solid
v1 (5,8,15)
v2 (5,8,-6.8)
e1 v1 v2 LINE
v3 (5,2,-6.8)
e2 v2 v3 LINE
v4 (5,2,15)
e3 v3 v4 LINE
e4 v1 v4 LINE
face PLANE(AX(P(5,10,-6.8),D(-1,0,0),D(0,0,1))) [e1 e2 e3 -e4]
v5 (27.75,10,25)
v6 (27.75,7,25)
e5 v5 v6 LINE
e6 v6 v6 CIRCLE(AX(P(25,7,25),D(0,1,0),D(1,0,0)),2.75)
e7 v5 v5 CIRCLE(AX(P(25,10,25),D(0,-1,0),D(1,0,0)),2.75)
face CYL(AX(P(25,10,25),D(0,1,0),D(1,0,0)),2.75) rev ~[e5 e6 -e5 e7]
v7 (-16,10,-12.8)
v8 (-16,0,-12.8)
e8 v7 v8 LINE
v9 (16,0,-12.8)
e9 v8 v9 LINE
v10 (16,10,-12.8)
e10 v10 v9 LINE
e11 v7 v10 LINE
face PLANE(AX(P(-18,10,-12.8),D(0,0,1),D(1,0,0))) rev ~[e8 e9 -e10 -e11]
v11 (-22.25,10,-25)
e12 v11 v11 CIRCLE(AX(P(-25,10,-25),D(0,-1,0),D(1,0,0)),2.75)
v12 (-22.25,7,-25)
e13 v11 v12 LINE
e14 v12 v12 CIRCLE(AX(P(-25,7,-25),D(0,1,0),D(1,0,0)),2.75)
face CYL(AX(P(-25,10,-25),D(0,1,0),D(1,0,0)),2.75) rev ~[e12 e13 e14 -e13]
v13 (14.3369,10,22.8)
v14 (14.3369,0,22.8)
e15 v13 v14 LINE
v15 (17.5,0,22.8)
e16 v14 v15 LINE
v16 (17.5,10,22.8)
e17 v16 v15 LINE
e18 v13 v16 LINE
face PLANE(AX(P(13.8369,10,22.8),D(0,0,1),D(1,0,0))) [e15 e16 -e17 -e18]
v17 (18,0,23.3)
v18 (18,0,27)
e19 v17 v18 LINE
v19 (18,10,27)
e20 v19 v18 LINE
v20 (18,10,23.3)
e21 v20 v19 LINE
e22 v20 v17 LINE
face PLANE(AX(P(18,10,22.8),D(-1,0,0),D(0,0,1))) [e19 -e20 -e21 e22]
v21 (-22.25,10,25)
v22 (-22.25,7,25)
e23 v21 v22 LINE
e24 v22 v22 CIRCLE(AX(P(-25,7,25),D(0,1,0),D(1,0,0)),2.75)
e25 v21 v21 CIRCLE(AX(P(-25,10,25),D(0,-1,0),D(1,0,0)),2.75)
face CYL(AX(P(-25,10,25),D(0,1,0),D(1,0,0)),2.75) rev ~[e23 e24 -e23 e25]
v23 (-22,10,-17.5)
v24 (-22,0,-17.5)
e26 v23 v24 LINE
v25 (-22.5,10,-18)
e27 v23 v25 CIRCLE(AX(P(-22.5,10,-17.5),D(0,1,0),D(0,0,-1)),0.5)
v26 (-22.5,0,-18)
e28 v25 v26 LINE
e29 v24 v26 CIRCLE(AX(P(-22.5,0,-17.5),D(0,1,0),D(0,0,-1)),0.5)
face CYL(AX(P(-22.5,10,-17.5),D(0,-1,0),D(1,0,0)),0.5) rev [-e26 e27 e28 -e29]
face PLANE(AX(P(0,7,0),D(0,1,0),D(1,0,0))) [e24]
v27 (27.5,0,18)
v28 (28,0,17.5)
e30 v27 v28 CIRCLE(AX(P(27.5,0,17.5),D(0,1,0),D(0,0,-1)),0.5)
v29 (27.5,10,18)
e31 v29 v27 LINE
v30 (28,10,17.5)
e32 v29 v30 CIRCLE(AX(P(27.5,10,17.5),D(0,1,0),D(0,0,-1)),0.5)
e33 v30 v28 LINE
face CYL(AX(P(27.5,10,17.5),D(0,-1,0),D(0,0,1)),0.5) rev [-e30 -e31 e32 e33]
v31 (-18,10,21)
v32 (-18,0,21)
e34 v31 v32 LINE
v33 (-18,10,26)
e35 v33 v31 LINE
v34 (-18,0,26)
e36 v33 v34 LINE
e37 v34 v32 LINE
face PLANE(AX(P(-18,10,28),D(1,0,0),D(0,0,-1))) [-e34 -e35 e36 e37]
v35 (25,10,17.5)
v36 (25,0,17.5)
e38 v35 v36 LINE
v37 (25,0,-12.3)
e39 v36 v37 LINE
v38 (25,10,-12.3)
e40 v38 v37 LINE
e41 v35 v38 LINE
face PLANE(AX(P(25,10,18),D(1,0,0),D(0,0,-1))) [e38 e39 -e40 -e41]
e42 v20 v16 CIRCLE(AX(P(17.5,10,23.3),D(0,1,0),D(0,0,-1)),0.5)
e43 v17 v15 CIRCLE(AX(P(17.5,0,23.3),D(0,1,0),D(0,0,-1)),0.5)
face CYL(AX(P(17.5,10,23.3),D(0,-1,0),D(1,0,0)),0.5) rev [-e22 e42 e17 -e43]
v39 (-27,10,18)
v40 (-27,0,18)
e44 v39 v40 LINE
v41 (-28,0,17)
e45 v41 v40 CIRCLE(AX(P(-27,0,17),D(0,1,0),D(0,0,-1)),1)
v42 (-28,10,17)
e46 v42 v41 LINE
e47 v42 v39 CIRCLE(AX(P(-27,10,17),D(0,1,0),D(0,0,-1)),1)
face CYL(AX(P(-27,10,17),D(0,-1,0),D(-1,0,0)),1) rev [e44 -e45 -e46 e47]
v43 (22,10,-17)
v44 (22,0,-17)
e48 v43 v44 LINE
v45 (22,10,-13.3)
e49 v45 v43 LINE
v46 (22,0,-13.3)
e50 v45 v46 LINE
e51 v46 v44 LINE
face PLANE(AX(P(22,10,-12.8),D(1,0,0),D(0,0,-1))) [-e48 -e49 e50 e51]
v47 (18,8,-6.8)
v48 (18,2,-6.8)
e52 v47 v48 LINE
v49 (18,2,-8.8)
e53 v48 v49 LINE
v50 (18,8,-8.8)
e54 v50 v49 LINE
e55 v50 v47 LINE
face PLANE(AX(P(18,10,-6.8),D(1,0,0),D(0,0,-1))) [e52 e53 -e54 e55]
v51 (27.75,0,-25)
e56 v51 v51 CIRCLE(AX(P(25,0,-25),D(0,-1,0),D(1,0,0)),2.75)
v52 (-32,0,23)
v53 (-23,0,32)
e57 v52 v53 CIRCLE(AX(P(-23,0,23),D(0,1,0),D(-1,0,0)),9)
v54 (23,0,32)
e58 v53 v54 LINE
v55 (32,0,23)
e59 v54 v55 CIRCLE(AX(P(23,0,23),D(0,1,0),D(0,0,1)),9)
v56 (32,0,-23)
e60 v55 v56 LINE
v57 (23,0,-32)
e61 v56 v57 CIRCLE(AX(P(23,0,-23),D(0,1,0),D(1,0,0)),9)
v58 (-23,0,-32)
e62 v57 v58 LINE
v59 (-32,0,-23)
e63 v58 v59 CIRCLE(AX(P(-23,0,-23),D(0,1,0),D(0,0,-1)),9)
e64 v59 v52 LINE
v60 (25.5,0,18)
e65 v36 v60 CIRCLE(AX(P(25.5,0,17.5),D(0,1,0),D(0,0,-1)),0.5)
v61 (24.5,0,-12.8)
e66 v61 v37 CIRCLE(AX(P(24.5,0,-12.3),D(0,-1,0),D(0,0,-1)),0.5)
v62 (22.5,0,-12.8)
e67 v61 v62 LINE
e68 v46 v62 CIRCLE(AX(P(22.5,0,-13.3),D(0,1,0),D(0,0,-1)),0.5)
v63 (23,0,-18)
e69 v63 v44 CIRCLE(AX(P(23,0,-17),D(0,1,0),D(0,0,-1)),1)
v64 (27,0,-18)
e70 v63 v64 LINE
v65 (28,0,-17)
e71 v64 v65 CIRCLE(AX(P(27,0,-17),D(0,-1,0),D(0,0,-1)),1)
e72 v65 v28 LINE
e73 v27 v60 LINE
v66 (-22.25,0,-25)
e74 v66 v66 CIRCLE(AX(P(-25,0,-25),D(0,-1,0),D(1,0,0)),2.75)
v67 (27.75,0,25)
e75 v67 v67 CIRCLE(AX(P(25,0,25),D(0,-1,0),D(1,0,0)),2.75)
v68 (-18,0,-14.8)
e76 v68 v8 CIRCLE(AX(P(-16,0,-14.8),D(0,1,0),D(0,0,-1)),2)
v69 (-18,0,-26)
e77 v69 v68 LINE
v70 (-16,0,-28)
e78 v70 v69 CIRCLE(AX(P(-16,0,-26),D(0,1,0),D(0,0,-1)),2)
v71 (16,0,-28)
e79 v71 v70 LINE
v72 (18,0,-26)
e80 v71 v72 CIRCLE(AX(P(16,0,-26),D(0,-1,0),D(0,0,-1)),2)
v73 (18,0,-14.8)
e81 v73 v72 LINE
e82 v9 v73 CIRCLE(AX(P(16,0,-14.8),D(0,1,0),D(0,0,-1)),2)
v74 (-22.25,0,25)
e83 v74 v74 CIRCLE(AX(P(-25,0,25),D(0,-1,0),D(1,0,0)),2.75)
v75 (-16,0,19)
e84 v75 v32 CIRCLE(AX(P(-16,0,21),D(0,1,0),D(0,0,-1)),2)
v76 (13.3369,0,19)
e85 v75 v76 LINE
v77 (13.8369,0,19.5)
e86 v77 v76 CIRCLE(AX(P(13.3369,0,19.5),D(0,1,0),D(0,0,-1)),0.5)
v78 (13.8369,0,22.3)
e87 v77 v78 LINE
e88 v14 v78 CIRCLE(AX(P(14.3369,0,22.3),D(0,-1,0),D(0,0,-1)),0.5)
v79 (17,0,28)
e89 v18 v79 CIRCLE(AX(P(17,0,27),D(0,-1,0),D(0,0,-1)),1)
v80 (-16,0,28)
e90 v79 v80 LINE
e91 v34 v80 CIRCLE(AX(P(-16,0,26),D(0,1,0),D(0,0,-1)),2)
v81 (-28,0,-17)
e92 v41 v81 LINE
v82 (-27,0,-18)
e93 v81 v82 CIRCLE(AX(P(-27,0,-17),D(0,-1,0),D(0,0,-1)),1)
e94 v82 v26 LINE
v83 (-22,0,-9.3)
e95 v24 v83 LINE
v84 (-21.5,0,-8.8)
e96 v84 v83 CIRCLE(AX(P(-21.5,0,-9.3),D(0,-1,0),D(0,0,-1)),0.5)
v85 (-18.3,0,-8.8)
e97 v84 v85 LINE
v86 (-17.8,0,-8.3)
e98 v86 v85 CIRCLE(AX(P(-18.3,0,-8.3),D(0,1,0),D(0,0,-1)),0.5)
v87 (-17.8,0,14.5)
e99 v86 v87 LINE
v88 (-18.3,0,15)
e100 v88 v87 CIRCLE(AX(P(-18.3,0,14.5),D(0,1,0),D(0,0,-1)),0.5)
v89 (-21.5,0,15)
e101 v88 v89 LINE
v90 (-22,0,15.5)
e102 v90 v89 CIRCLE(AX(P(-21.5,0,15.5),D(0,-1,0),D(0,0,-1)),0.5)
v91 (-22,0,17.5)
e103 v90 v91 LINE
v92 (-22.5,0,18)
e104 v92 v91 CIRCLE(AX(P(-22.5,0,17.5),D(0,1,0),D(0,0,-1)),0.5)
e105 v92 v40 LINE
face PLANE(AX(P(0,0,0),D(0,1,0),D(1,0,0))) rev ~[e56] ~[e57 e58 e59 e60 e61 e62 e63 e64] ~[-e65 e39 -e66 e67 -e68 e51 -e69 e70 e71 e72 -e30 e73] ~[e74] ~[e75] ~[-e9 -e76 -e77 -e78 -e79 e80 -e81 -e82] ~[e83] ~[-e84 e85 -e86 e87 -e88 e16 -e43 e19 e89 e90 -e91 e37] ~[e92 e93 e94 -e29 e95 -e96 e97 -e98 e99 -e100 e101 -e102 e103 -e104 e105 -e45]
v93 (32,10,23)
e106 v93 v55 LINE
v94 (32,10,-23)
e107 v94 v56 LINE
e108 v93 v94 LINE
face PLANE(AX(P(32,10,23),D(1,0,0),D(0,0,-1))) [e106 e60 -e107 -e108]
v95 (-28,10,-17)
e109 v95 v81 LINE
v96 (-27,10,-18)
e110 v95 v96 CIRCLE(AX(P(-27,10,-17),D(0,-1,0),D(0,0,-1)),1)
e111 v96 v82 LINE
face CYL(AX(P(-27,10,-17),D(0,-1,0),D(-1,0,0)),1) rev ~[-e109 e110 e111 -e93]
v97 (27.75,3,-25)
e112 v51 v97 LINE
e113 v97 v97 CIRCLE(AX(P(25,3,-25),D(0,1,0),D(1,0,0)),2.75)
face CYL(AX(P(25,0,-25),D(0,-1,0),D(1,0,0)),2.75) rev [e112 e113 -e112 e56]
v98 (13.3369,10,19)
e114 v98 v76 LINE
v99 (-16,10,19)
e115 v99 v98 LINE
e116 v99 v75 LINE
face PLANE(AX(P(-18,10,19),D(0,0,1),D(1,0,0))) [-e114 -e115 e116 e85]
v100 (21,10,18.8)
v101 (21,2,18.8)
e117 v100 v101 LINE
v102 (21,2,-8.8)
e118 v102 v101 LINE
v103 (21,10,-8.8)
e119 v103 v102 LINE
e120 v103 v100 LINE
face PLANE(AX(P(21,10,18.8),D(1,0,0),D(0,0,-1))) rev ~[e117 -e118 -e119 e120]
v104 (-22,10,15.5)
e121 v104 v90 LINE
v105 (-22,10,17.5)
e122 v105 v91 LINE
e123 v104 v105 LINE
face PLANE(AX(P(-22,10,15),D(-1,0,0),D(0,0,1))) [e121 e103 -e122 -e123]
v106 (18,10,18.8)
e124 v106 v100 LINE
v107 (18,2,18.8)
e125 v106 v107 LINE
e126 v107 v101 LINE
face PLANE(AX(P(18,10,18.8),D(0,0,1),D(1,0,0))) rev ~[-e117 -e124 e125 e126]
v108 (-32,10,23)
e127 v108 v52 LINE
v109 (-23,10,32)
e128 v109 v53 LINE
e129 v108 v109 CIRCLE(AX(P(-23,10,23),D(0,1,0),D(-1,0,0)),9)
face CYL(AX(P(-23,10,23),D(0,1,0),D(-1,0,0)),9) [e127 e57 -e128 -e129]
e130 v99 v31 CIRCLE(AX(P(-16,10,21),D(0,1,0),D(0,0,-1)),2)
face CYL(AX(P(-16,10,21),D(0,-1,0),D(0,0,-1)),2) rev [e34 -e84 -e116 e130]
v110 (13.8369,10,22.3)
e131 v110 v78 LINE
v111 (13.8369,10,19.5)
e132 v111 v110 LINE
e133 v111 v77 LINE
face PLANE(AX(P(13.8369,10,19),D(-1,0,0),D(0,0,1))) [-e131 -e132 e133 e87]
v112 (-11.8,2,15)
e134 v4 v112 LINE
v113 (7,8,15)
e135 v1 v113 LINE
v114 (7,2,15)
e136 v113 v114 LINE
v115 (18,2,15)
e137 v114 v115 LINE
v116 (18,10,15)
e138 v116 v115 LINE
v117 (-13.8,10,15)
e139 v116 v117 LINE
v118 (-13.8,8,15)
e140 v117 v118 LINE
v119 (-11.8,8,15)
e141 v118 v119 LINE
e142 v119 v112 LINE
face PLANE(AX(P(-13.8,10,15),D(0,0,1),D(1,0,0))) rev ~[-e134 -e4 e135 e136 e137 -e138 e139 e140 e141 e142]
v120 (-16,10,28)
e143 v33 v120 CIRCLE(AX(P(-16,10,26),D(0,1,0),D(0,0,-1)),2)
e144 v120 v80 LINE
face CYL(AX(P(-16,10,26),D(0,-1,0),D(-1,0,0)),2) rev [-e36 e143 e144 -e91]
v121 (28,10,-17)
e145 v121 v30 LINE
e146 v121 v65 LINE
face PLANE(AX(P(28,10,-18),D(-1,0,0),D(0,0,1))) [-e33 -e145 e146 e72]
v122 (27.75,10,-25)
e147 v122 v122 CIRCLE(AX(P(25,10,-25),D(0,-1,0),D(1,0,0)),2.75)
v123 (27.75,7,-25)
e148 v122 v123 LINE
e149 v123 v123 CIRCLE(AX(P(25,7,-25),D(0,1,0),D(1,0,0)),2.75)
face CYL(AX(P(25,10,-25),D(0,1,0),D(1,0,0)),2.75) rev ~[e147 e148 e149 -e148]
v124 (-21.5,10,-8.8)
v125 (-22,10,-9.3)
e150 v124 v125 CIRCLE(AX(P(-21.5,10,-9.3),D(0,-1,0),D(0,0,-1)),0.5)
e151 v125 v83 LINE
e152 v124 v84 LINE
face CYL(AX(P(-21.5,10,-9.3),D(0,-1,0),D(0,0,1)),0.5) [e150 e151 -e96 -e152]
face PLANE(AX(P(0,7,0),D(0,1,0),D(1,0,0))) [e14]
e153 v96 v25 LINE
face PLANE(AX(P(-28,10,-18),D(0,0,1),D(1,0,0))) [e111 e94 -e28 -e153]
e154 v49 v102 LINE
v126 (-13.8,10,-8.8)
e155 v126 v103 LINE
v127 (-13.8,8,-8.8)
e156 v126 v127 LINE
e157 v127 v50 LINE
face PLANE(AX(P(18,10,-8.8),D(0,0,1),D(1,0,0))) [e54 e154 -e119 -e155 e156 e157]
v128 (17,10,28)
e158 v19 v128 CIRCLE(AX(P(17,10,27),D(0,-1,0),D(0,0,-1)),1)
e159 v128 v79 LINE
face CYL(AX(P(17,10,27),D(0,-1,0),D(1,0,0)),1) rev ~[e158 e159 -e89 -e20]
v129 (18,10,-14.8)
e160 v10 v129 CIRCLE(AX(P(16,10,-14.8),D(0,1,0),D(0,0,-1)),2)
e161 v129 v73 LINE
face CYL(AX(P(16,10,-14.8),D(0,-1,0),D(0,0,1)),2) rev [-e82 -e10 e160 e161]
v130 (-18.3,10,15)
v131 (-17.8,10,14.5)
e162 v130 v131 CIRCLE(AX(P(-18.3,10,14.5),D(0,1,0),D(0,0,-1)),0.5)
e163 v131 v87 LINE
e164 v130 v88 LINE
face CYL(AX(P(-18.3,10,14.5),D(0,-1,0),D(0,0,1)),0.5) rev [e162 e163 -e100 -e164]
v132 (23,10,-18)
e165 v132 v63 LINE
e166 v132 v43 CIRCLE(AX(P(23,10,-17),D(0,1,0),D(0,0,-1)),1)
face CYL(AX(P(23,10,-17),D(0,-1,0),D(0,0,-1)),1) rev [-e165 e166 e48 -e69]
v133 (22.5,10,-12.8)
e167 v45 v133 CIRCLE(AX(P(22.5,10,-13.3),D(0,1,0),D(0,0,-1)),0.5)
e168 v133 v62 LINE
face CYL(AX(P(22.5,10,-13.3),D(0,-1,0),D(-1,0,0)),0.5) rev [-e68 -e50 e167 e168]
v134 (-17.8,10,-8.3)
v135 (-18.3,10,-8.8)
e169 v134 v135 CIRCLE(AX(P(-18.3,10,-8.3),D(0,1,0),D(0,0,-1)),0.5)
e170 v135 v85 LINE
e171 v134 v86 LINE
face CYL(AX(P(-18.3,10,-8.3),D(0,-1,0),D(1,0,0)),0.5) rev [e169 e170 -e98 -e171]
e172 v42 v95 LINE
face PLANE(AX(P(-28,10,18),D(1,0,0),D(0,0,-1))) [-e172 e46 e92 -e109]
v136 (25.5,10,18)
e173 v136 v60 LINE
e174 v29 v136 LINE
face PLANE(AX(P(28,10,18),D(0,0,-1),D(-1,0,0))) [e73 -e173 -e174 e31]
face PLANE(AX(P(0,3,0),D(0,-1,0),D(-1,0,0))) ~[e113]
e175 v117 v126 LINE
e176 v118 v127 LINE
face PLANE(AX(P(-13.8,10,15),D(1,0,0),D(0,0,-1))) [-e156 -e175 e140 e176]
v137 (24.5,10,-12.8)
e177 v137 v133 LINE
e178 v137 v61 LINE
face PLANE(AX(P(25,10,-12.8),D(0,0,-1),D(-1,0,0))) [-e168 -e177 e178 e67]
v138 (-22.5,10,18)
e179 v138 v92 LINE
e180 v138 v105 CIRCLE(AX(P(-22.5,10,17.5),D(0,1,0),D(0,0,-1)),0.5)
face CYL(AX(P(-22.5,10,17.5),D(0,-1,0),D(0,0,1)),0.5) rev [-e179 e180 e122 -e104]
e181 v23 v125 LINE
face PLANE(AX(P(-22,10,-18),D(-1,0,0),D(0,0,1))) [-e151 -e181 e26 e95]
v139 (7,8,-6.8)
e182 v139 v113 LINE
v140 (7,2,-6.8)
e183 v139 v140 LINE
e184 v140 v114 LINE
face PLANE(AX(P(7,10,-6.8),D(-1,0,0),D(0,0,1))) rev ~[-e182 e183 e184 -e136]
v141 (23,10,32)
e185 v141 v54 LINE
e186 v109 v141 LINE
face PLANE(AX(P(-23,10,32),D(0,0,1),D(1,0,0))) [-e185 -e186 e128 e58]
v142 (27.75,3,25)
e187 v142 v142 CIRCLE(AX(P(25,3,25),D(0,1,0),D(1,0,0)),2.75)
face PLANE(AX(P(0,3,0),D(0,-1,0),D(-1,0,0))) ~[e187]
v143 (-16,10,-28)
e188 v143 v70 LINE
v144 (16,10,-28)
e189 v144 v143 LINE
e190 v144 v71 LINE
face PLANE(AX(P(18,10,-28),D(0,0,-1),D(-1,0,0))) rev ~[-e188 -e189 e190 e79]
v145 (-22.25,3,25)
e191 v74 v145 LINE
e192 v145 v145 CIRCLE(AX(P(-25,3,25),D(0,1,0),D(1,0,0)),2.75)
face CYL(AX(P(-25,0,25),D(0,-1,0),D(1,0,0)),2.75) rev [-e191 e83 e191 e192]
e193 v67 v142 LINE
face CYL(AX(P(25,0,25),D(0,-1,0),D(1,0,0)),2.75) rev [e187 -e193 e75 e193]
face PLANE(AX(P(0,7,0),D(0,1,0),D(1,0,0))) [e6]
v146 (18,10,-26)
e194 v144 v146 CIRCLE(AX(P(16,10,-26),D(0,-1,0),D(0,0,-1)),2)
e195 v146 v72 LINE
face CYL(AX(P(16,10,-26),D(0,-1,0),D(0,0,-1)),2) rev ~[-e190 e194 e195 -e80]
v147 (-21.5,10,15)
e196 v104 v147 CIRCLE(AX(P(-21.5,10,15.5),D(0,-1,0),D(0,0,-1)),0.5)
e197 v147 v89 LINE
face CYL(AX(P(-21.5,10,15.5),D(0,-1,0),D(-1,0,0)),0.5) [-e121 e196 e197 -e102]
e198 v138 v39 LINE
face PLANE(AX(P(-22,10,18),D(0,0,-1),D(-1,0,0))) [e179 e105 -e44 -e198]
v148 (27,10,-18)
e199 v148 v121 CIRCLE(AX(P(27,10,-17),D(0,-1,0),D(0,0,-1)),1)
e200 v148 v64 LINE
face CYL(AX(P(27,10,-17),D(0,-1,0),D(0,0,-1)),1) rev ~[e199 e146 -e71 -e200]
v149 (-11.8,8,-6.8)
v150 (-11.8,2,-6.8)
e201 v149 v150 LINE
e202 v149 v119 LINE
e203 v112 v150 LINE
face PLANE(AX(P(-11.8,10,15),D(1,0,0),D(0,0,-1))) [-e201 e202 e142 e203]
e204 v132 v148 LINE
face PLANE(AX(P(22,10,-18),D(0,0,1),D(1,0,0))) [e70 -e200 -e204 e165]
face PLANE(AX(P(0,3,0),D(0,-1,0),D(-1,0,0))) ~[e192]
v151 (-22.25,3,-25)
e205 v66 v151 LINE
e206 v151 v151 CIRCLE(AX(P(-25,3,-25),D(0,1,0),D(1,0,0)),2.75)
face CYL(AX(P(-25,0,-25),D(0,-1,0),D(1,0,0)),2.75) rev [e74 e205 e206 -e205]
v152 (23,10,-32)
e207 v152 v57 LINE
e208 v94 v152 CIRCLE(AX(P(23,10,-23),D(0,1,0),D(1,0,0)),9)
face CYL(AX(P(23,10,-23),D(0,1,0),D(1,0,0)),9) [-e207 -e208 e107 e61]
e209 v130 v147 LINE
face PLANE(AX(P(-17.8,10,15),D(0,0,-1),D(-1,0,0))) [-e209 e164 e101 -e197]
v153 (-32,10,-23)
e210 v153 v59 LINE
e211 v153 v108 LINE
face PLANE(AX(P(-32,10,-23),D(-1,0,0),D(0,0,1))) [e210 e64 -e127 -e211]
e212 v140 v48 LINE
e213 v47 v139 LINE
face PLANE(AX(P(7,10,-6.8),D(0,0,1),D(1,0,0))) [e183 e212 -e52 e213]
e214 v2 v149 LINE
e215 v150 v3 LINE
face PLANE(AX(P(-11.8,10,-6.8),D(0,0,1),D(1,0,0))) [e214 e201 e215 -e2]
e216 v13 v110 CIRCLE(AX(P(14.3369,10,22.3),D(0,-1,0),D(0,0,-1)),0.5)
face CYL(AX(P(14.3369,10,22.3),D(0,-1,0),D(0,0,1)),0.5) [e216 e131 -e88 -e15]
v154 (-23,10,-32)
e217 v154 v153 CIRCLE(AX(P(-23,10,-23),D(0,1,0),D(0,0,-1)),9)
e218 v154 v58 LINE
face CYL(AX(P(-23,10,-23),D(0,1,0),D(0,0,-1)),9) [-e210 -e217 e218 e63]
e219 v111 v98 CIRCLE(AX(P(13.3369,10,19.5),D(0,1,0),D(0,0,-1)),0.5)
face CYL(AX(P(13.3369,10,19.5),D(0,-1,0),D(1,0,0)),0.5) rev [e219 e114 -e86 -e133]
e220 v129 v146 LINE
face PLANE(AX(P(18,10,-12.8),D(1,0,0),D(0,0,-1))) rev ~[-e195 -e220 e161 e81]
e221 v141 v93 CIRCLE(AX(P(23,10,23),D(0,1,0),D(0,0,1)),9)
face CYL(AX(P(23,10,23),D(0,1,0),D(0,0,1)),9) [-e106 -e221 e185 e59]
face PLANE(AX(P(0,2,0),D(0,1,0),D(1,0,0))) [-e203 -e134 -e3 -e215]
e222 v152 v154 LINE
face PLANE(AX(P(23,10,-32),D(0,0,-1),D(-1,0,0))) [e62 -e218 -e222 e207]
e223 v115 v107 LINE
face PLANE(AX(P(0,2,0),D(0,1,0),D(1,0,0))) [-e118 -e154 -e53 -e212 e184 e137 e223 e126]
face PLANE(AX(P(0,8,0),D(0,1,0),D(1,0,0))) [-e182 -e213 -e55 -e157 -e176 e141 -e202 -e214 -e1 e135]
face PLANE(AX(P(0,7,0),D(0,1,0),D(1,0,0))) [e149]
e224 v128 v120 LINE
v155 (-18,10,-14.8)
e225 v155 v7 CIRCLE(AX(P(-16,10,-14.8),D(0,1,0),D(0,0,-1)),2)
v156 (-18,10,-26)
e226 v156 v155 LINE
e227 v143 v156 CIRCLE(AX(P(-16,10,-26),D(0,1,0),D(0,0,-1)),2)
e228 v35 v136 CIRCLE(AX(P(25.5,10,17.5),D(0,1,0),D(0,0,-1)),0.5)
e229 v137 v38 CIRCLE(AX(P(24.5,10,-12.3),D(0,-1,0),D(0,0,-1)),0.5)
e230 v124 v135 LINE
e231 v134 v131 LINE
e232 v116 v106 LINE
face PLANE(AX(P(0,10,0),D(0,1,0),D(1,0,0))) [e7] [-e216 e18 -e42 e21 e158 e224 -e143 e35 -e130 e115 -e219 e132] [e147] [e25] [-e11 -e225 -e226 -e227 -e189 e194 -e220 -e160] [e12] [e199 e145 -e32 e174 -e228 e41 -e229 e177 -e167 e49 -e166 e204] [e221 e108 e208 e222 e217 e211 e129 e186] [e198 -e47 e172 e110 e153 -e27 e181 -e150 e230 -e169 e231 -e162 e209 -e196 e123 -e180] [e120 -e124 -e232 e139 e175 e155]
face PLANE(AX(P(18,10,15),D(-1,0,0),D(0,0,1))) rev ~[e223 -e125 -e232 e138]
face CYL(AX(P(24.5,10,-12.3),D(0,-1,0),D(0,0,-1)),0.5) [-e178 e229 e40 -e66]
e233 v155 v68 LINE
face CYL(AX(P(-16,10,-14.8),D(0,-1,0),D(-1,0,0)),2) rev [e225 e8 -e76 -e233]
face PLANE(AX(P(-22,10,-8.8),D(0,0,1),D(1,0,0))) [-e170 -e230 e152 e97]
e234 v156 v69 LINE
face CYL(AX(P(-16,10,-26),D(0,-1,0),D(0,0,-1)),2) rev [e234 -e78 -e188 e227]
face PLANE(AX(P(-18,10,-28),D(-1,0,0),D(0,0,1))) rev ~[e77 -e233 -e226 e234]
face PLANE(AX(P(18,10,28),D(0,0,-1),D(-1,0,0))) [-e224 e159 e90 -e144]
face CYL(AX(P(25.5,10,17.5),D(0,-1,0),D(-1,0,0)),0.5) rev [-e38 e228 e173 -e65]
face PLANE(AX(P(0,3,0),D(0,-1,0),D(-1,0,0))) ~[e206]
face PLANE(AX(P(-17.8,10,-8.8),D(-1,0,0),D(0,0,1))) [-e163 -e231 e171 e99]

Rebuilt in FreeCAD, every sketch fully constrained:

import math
import FreeCAD as App
import Part
import Sketcher
from FreeCAD import Vector
Q = App.Units.Quantity


def edges_at(feature, points):
    """Names of the edges that pass closest to the given points."""
    edges = feature.Shape.Edges
    near = lambda p: min(range(len(edges)), key=lambda i: edges[i].distToShape(Part.Vertex(*p))[0])
    return sorted({f"Edge{near(p) + 1}" for p in points})

doc = App.newDocument("Part")
body = doc.addObject("PartDesign::Body", "Body")

sketch1 = body.newObject("Sketcher::SketchObject", "Sketch")
sketch1.AttachmentSupport = (doc.getObject("XZ_Plane"), [""])
sketch1.MapMode = "FlatFace"
sketch1.addGeometry([
    Part.LineSegment(Vector(-30, -30, 0), Vector(-30, 30, 0)),
    Part.LineSegment(Vector(-30, 30, 0), Vector(30, 30, 0)),
    Part.LineSegment(Vector(30, 30, 0), Vector(30, -30, 0)),
    Part.LineSegment(Vector(30, -30, 0), Vector(-30, -30, 0)),
], False)
sketch1.addConstraint([
    Sketcher.Constraint("Coincident", 0, 2, 1, 1),
    Sketcher.Constraint("Coincident", 1, 2, 2, 1),
    Sketcher.Constraint("Coincident", 2, 2, 3, 1),
    Sketcher.Constraint("Coincident", 3, 2, 0, 1),
    Sketcher.Constraint("Vertical", 0),
    Sketcher.Constraint("Horizontal", 1),
    Sketcher.Constraint("Vertical", 2),
    Sketcher.Constraint("Horizontal", 3),
    Sketcher.Constraint("Symmetric", 0, 2, 2, 2, -1, 1),
    Sketcher.Constraint("Equal", 3, 0),
    Sketcher.Constraint("DistanceX", 1, 1, 1, 2, Q("60 mm")),
])
pad1 = body.newObject("PartDesign::Pad", "Pad")
pad1.Profile = sketch1
pad1.Length = 10
pad1.Reversed = True
doc.recompute()

fillet = body.newObject("PartDesign::Fillet", "Fillet")
fillet.Base = (pad1, edges_at(pad1, [
    (30, 5, 30),
    (30, 5, -30),
    (-30, 5, 30),
    (-30, 5, -30),
]))
fillet.Radius = 7

sketch2 = body.newObject("Sketcher::SketchObject", "Sketch001")
sketch2.AttachmentSupport = (doc.getObject("XZ_Plane"), [""])
sketch2.MapMode = "FlatFace"
sketch2.AttachmentOffset = App.Placement(Vector(0, 0, -10), App.Rotation())
sketch2.addGeometry([
    Part.Circle(Vector(25, 25, 0), Vector(0, 0, 1), 2.8),
    Part.Circle(Vector(25, -25, 0), Vector(0, 0, 1), 2.8),
    Part.Circle(Vector(-25, 25, 0), Vector(0, 0, 1), 2.8),
    Part.Circle(Vector(-25, -25, 0), Vector(0, 0, 1), 2.8),
], False)
sketch2.addConstraint([
    Sketcher.Constraint("Equal", 0, 1),
    Sketcher.Constraint("Equal", 1, 2),
    Sketcher.Constraint("Equal", 2, 3),
    Sketcher.Constraint("Symmetric", 1, 3, 2, 3, -1, 1),
    Sketcher.Constraint("Symmetric", 0, 3, 3, 3, -1, 1),
    Sketcher.Constraint("Symmetric", 0, 3, 2, 3, -2),
    Sketcher.Constraint("Diameter", 0, Q("5.5 mm")),
    Sketcher.Constraint("DistanceX", -1, 1, 0, 3, Q("25 mm")),
    Sketcher.Constraint("DistanceY", -1, 1, 0, 3, Q("25 mm")),
])
pocket1 = body.newObject("PartDesign::Pocket", "Pocket")
pocket1.Profile = sketch2
pocket1.Length = 3
pocket1.Reversed = True

sketch3 = body.newObject("Sketcher::SketchObject", "Sketch002")
sketch3.AttachmentSupport = (doc.getObject("XZ_Plane"), [""])
sketch3.MapMode = "FlatFace"
sketch3.AttachmentOffset = App.Placement(Vector(0, 0, -10), App.Rotation())
sketch3.addGeometry([
    Part.ArcOfCircle(Part.Circle(Vector(23, -23, 0), Vector(0, 0, 1), 9), math.radians(-90), math.radians(0)),
    Part.LineSegment(Vector(23, -32, 0), Vector(-23, -32, 0)),
    Part.ArcOfCircle(Part.Circle(Vector(-23, -23, 0), Vector(0, 0, 1), 9), math.radians(180), math.radians(270)),
    Part.LineSegment(Vector(-32, -23, 0), Vector(-32, 23, 0)),
    Part.ArcOfCircle(Part.Circle(Vector(-23, 23, 0), Vector(0, 0, 1), 9), math.radians(90), math.radians(180)),
    Part.LineSegment(Vector(-23, 32, 0), Vector(23, 32, 0)),
    Part.ArcOfCircle(Part.Circle(Vector(23, 23, 0), Vector(0, 0, 1), 9), math.radians(0), math.radians(90)),
    Part.LineSegment(Vector(32, 23, 0), Vector(32, -23, 0)),
    Part.ArcOfCircle(Part.Circle(Vector(-23, -23, 0), Vector(0, 0, 1), 7), math.radians(180), math.radians(270)),
    Part.LineSegment(Vector(-23, -30, 0), Vector(23, -30, 0)),
    Part.ArcOfCircle(Part.Circle(Vector(23, -23, 0), Vector(0, 0, 1), 7), math.radians(-90), math.radians(0)),
    Part.LineSegment(Vector(30, -23, 0), Vector(30, 23, 0)),
    Part.ArcOfCircle(Part.Circle(Vector(23, 23, 0), Vector(0, 0, 1), 7), math.radians(0), math.radians(90)),
    Part.LineSegment(Vector(23, 30, 0), Vector(-23, 30, 0)),
    Part.ArcOfCircle(Part.Circle(Vector(-23, 23, 0), Vector(0, 0, 1), 7), math.radians(90), math.radians(180)),
    Part.LineSegment(Vector(-30, 23, 0), Vector(-30, -23, 0)),
], False)
sketch3.addConstraint([
    Sketcher.Constraint("Tangent", 0, 1, 1, 1),
    Sketcher.Constraint("Tangent", 1, 2, 2, 2),
    Sketcher.Constraint("Tangent", 2, 1, 3, 1),
    Sketcher.Constraint("Tangent", 3, 2, 4, 2),
    Sketcher.Constraint("Tangent", 4, 1, 5, 1),
    Sketcher.Constraint("Tangent", 5, 2, 6, 2),
    Sketcher.Constraint("Tangent", 6, 1, 7, 1),
    Sketcher.Constraint("Tangent", 7, 2, 0, 2),
    Sketcher.Constraint("Tangent", 8, 2, 9, 1),
    Sketcher.Constraint("Tangent", 9, 2, 10, 1),
    Sketcher.Constraint("Tangent", 10, 2, 11, 1),
    Sketcher.Constraint("Tangent", 11, 2, 12, 1),
    Sketcher.Constraint("Tangent", 12, 2, 13, 1),
    Sketcher.Constraint("Tangent", 13, 2, 14, 1),
    Sketcher.Constraint("Tangent", 14, 2, 15, 1),
    Sketcher.Constraint("Tangent", 15, 2, 8, 1),
    Sketcher.Constraint("Horizontal", 1),
    Sketcher.Constraint("Vertical", 3),
    Sketcher.Constraint("Horizontal", 5),
    Sketcher.Constraint("Vertical", 7),
    Sketcher.Constraint("Horizontal", 9),
    Sketcher.Constraint("Vertical", 11),
    Sketcher.Constraint("Horizontal", 13),
    Sketcher.Constraint("Vertical", 15),
    Sketcher.Constraint("Coincident", 8, 3, 2, 3),
    Sketcher.Constraint("Coincident", 10, 3, 0, 3),
    Sketcher.Constraint("Coincident", 12, 3, 6, 3),
    Sketcher.Constraint("Equal", 0, 2),
    Sketcher.Constraint("Equal", 2, 4),
    Sketcher.Constraint("Equal", 4, 6),
    Sketcher.Constraint("Equal", 12, 14),
    Sketcher.Constraint("Symmetric", 0, 3, 4, 3, -1, 1),
    Sketcher.Constraint("Equal", 13, 3),
    Sketcher.Constraint("Radius", 8, Q("7 mm")),
    Sketcher.Constraint("Radius", 0, Q("9 mm")),
    Sketcher.Constraint("DistanceX", 1, 2, 1, 1, Q("46 mm")),
])
pad2 = body.newObject("PartDesign::Pad", "Pad001")
pad2.Profile = sketch3
pad2.Length = 10

sketch4 = body.newObject("Sketcher::SketchObject", "Sketch003")
sketch4.AttachmentSupport = (doc.getObject("XZ_Plane"), [""])
sketch4.MapMode = "FlatFace"
sketch4.AttachmentOffset = App.Placement(Vector(0, 0, -10), App.Rotation())
sketch4.addGeometry([
    Part.LineSegment(Vector(18, -6.8, 0), Vector(18, -8.8, 0)),
    Part.LineSegment(Vector(18, -8.8, 0), Vector(-13.8, -8.8, 0)),
    Part.LineSegment(Vector(-13.8, -8.8, 0), Vector(-13.8, 15, 0)),
    Part.LineSegment(Vector(-13.8, 15, 0), Vector(-11.8, 15, 0)),
    Part.LineSegment(Vector(-11.8, 15, 0), Vector(-11.8, -6.8, 0)),
    Part.LineSegment(Vector(-11.8, -6.8, 0), Vector(5, -6.8, 0)),
    Part.LineSegment(Vector(5, -6.8, 0), Vector(5, 15, 0)),
    Part.LineSegment(Vector(5, 15, 0), Vector(7, 15, 0)),
    Part.LineSegment(Vector(7, 15, 0), Vector(7, -6.8, 0)),
    Part.LineSegment(Vector(7, -6.8, 0), Vector(18, -6.8, 0)),
], False)
sketch4.addConstraint([
    Sketcher.Constraint("Coincident", 0, 2, 1, 1),
    Sketcher.Constraint("Coincident", 1, 2, 2, 1),
    Sketcher.Constraint("Coincident", 2, 2, 3, 1),
    Sketcher.Constraint("Coincident", 3, 2, 4, 1),
    Sketcher.Constraint("Coincident", 4, 2, 5, 1),
    Sketcher.Constraint("Coincident", 5, 2, 6, 1),
    Sketcher.Constraint("Coincident", 6, 2, 7, 1),
    Sketcher.Constraint("Coincident", 7, 2, 8, 1),
    Sketcher.Constraint("Coincident", 8, 2, 9, 1),
    Sketcher.Constraint("Coincident", 9, 2, 0, 1),
    Sketcher.Constraint("Vertical", 0),
    Sketcher.Constraint("Horizontal", 1),
    Sketcher.Constraint("Vertical", 2),
    Sketcher.Constraint("Horizontal", 3),
    Sketcher.Constraint("Vertical", 4),
    Sketcher.Constraint("Horizontal", 5),
    Sketcher.Constraint("Vertical", 6),
    Sketcher.Constraint("Horizontal", 7),
    Sketcher.Constraint("Vertical", 8),
    Sketcher.Constraint("Horizontal", 9),
    Sketcher.Constraint("Horizontal", 3, 2, 6, 2),
    Sketcher.Constraint("Horizontal", 5, 2, 8, 2),
    Sketcher.Constraint("Equal", 3, 7),
    Sketcher.Constraint("Equal", 7, 0),
    Sketcher.Constraint("DistanceX", 3, 1, 3, 2, Q("2 mm")),
    Sketcher.Constraint("DistanceY", 2, 1, 2, 2, Q("23.8 mm")),
    Sketcher.Constraint("DistanceX", 9, 1, 9, 2, Q("11 mm")),
    Sketcher.Constraint("DistanceX", 1, 2, 1, 1, Q("31.8 mm")),
    Sketcher.Constraint("DistanceX", -1, 1, 0, 2, Q("18 mm")),
    Sketcher.Constraint("DistanceY", -1, 1, 2, 2, Q("15 mm")),
])
pocket2 = body.newObject("PartDesign::Pocket", "Pocket001")
pocket2.Profile = sketch4
pocket2.Length = 2
pocket2.Reversed = True

sketch5 = body.newObject("Sketcher::SketchObject", "Sketch004")
sketch5.AttachmentSupport = (doc.getObject("XZ_Plane"), [""])
sketch5.MapMode = "FlatFace"
sketch5.AttachmentOffset = App.Placement(Vector(0, 0, -10), App.Rotation())
sketch5.addGeometry([
    Part.LineSegment(Vector(5, -7, 0), Vector(-12, -7, 0)),
    Part.LineSegment(Vector(-12, -7, 0), Vector(-12, 15, 0)),
    Part.LineSegment(Vector(-12, 15, 0), Vector(5, 15, 0)),
    Part.LineSegment(Vector(5, 15, 0), Vector(5, -7, 0)),
], False)
sketch5.addConstraint([
    Sketcher.Constraint("Coincident", 0, 2, 1, 1),
    Sketcher.Constraint("Coincident", 1, 2, 2, 1),
    Sketcher.Constraint("Coincident", 2, 2, 3, 1),
    Sketcher.Constraint("Coincident", 3, 2, 0, 1),
    Sketcher.Constraint("Horizontal", 0),
    Sketcher.Constraint("Vertical", 1),
    Sketcher.Constraint("Horizontal", 2),
    Sketcher.Constraint("Vertical", 3),
    Sketcher.Constraint("DistanceX", 0, 2, 0, 1, Q("16.8 mm")),
    Sketcher.Constraint("DistanceY", 1, 1, 1, 2, Q("21.8 mm")),
    Sketcher.Constraint("DistanceY", -1, 1, 1, 2, Q("15 mm")),
    Sketcher.Constraint("DistanceX", -1, 1, 2, 2, Q("5 mm")),
])
pocket3 = body.newObject("PartDesign::Pocket", "Pocket002")
pocket3.Profile = sketch5
pocket3.Length = 8
pocket3.Reversed = True

sketch6 = body.newObject("Sketcher::SketchObject", "Sketch005")
sketch6.AttachmentSupport = (doc.getObject("XZ_Plane"), [""])
sketch6.MapMode = "FlatFace"
sketch6.AttachmentOffset = App.Placement(Vector(0, 0, -10), App.Rotation())
sketch6.addGeometry([
    Part.LineSegment(Vector(18, -6.8, 0), Vector(7, -6.8, 0)),
    Part.LineSegment(Vector(7, -6.8, 0), Vector(7, 15, 0)),
    Part.LineSegment(Vector(7, 15, 0), Vector(18, 15, 0)),
    Part.LineSegment(Vector(18, 15, 0), Vector(18, 18.8, 0)),
    Part.LineSegment(Vector(18, 18.8, 0), Vector(21, 18.8, 0)),
    Part.LineSegment(Vector(21, 18.8, 0), Vector(21, -8.8, 0)),
    Part.LineSegment(Vector(21, -8.8, 0), Vector(18, -8.8, 0)),
    Part.LineSegment(Vector(18, -8.8, 0), Vector(18, -6.8, 0)),
], False)
sketch6.addConstraint([
    Sketcher.Constraint("Coincident", 0, 2, 1, 1),
    Sketcher.Constraint("Coincident", 1, 2, 2, 1),
    Sketcher.Constraint("Coincident", 2, 2, 3, 1),
    Sketcher.Constraint("Coincident", 3, 2, 4, 1),
    Sketcher.Constraint("Coincident", 4, 2, 5, 1),
    Sketcher.Constraint("Coincident", 5, 2, 6, 1),
    Sketcher.Constraint("Coincident", 6, 2, 7, 1),
    Sketcher.Constraint("Coincident", 7, 2, 0, 1),
    Sketcher.Constraint("Horizontal", 0),
    Sketcher.Constraint("Vertical", 1),
    Sketcher.Constraint("Horizontal", 2),
    Sketcher.Constraint("Vertical", 3),
    Sketcher.Constraint("Horizontal", 4),
    Sketcher.Constraint("Vertical", 5),
    Sketcher.Constraint("Horizontal", 6),
    Sketcher.Constraint("Vertical", 7),
    Sketcher.Constraint("Vertical", 3, 2, 6, 2),
    Sketcher.Constraint("DistanceX", 4, 1, 4, 2, Q("3 mm")),
    Sketcher.Constraint("DistanceY", 3, 1, 3, 2, Q("3.8 mm")),
    Sketcher.Constraint("DistanceX", 0, 2, 0, 1, Q("11 mm")),
    Sketcher.Constraint("DistanceY", 7, 1, 7, 2, Q("2 mm")),
    Sketcher.Constraint("DistanceY", 1, 1, 1, 2, Q("21.8 mm")),
    Sketcher.Constraint("DistanceX", -1, 1, 0, 2, Q("7 mm")),
    Sketcher.Constraint("DistanceY", -1, 1, 1, 2, Q("15 mm")),
])
pocket4 = body.newObject("PartDesign::Pocket", "Pocket003")
pocket4.Profile = sketch6
pocket4.Length = 8
pocket4.Reversed = True

sketch7 = body.newObject("Sketcher::SketchObject", "Sketch006")
sketch7.AttachmentSupport = (doc.getObject("XZ_Plane"), [""])
sketch7.MapMode = "FlatFace"
sketch7.AttachmentOffset = App.Placement(Vector(0, 0, -10), App.Rotation())
sketch7.addGeometry([
    Part.LineSegment(Vector(18, -28, 0), Vector(-18, -28, 0)),
    Part.LineSegment(Vector(-18, -28, 0), Vector(-18, -12.8, 0)),
    Part.LineSegment(Vector(-18, -12.8, 0), Vector(18, -12.8, 0)),
    Part.LineSegment(Vector(18, -12.8, 0), Vector(18, -28, 0)),
    Part.LineSegment(Vector(28, 18, 0), Vector(28, -18, 0)),
    Part.LineSegment(Vector(28, -18, 0), Vector(22, -18, 0)),
    Part.LineSegment(Vector(22, -18, 0), Vector(22, -12.8, 0)),
    Part.LineSegment(Vector(22, -12.8, 0), Vector(25, -12.8, 0)),
    Part.LineSegment(Vector(25, -12.8, 0), Vector(25, 18, 0)),
    Part.LineSegment(Vector(25, 18, 0), Vector(28, 18, 0)),
    Part.LineSegment(Vector(-18, 28, 0), Vector(18, 28, 0)),
    Part.LineSegment(Vector(18, 28, 0), Vector(18, 22.8, 0)),
    Part.LineSegment(Vector(18, 22.8, 0), Vector(13.8, 22.8, 0)),
    Part.LineSegment(Vector(13.8, 22.8, 0), Vector(13.8, 19, 0)),
    Part.LineSegment(Vector(13.8, 19, 0), Vector(-18, 19, 0)),
    Part.LineSegment(Vector(-18, 19, 0), Vector(-18, 28, 0)),
    Part.LineSegment(Vector(-22, -18, 0), Vector(-28, -18, 0)),
    Part.LineSegment(Vector(-28, -18, 0), Vector(-28, 18, 0)),
    Part.LineSegment(Vector(-28, 18, 0), Vector(-22, 18, 0)),
    Part.LineSegment(Vector(-22, 18, 0), Vector(-22, 15, 0)),
    Part.LineSegment(Vector(-22, 15, 0), Vector(-17.8, 15, 0)),
    Part.LineSegment(Vector(-17.8, 15, 0), Vector(-17.8, -8.8, 0)),
    Part.LineSegment(Vector(-17.8, -8.8, 0), Vector(-22, -8.8, 0)),
    Part.LineSegment(Vector(-22, -8.8, 0), Vector(-22, -18, 0)),
], False)
sketch7.addConstraint([
    Sketcher.Constraint("Coincident", 0, 2, 1, 1),
    Sketcher.Constraint("Coincident", 1, 2, 2, 1),
    Sketcher.Constraint("Coincident", 2, 2, 3, 1),
    Sketcher.Constraint("Coincident", 3, 2, 0, 1),
    Sketcher.Constraint("Coincident", 4, 2, 5, 1),
    Sketcher.Constraint("Coincident", 5, 2, 6, 1),
    Sketcher.Constraint("Coincident", 6, 2, 7, 1),
    Sketcher.Constraint("Coincident", 7, 2, 8, 1),
    Sketcher.Constraint("Coincident", 8, 2, 9, 1),
    Sketcher.Constraint("Coincident", 9, 2, 4, 1),
    Sketcher.Constraint("Coincident", 10, 2, 11, 1),
    Sketcher.Constraint("Coincident", 11, 2, 12, 1),
    Sketcher.Constraint("Coincident", 12, 2, 13, 1),
    Sketcher.Constraint("Coincident", 13, 2, 14, 1),
    Sketcher.Constraint("Coincident", 14, 2, 15, 1),
    Sketcher.Constraint("Coincident", 15, 2, 10, 1),
    Sketcher.Constraint("Coincident", 16, 2, 17, 1),
    Sketcher.Constraint("Coincident", 17, 2, 18, 1),
    Sketcher.Constraint("Coincident", 18, 2, 19, 1),
    Sketcher.Constraint("Coincident", 19, 2, 20, 1),
    Sketcher.Constraint("Coincident", 20, 2, 21, 1),
    Sketcher.Constraint("Coincident", 21, 2, 22, 1),
    Sketcher.Constraint("Coincident", 22, 2, 23, 1),
    Sketcher.Constraint("Coincident", 23, 2, 16, 1),
    Sketcher.Constraint("Horizontal", 0),
    Sketcher.Constraint("Vertical", 1),
    Sketcher.Constraint("Horizontal", 2),
    Sketcher.Constraint("Vertical", 3),
    Sketcher.Constraint("Vertical", 4),
    Sketcher.Constraint("Horizontal", 5),
    Sketcher.Constraint("Vertical", 6),
    Sketcher.Constraint("Horizontal", 7),
    Sketcher.Constraint("Vertical", 8),
    Sketcher.Constraint("Horizontal", 9),
    Sketcher.Constraint("Horizontal", 10),
    Sketcher.Constraint("Vertical", 11),
    Sketcher.Constraint("Horizontal", 12),
    Sketcher.Constraint("Vertical", 13),
    Sketcher.Constraint("Horizontal", 14),
    Sketcher.Constraint("Vertical", 15),
    Sketcher.Constraint("Horizontal", 16),
    Sketcher.Constraint("Vertical", 17),
    Sketcher.Constraint("Horizontal", 18),
    Sketcher.Constraint("Vertical", 19),
    Sketcher.Constraint("Horizontal", 20),
    Sketcher.Constraint("Vertical", 21),
    Sketcher.Constraint("Horizontal", 22),
    Sketcher.Constraint("Vertical", 23),
    Sketcher.Constraint("Symmetric", 0, 2, 10, 2, -1, 1),
    Sketcher.Constraint("Symmetric", 9, 2, 16, 2, -1, 1),
    Sketcher.Constraint("Symmetric", 5, 2, 18, 2, -1, 1),
    Sketcher.Constraint("Symmetric", 5, 2, 23, 2, -2),
    Sketcher.Constraint("Horizontal", 2, 2, 6, 2),
    Sketcher.Constraint("Vertical", 3, 2, 10, 2),
    Sketcher.Constraint("Vertical", 1, 2, 14, 2),
    Sketcher.Constraint("Equal", 7, 9),
    Sketcher.Constraint("Equal", 10, 4),
    Sketcher.Constraint("Equal", 6, 11),
    Sketcher.Constraint("Equal", 9, 19),
    Sketcher.Constraint("DistanceX", 2, 2, 5, 2, Q("4 mm")),
    Sketcher.Constraint("DistanceY", 19, 2, 14, 2, Q("4 mm")),
    Sketcher.Constraint("DistanceY", 1, 2, 21, 2, Q("4 mm")),
    Sketcher.Constraint("DistanceX", 0, 2, 0, 1, Q("36 mm")),
    Sketcher.Constraint("DistanceX", 5, 2, 5, 1, Q("6 mm")),
    Sketcher.Constraint("DistanceY", 15, 1, 15, 2, Q("9 mm")),
    Sketcher.Constraint("DistanceX", 20, 1, 20, 2, Q("4.2 mm")),
    Sketcher.Constraint("DistanceY", 1, 1, 1, 2, Q("15.2 mm")),
    Sketcher.Constraint("DistanceX", 12, 2, 12, 1, Q("4.163 mm")),
])
pocket5 = body.newObject("PartDesign::Pocket", "Pocket004")
pocket5.Profile = sketch7
pocket5.Type = "ThroughAll"
pocket5.Reversed = True
doc.recompute()

fillet2 = body.newObject("PartDesign::Fillet", "Fillet001")
fillet2.Base = (pocket5, edges_at(pocket5, [
    (-22, 5, -18),
    (-22, 5, -8.8),
    (-17.8, 5, -8.8),
    (-22, 5, 15),
    (-17.8, 5, 15),
    (-22, 5, 18),
    (22, 5, -12.8),
    (25, 5, -12.8),
    (28, 5, 18),
    (25, 5, 18),
    (13.837, 5, 19),
    (13.837, 5, 22.8),
    (18, 5, 22.8),
]))
fillet2.Radius = 0.5
doc.recompute()

fillet3 = body.newObject("PartDesign::Fillet", "Fillet002")
fillet3.Base = (fillet2, edges_at(fillet2, [
    (22, 5, -18),
    (28, 5, -18),
    (-28, 5, -18),
    (-28, 5, 18),
    (18, 5, 28),
]))
fillet3.Radius = 1
doc.recompute()

fillet4 = body.newObject("PartDesign::Fillet", "Fillet003")
fillet4.Base = (fillet3, edges_at(fillet3, [
    (-18, 5, -28),
    (18, 5, -28),
    (18, 5, -12.8),
    (-18, 5, -12.8),
    (-18, 5, 19),
    (-18, 5, 28),
]))
fillet4.Radius = 2
doc.recompute()

datumplane = body.newObject("PartDesign::Plane", "DatumPlane")
datumplane.AttachmentSupport = (doc.getObject("XZ_Plane"), [""])
datumplane.MapMode = "FlatFace"
datumplane.AttachmentOffset = App.Placement(Vector(0, 0, -5), App.Rotation())
mirrored = body.newObject("PartDesign::Mirrored", "Mirrored")
mirrored.Originals = [pocket1]
mirrored.MirrorPlane = (datumplane, [""])
body.Tip = mirrored

doc.recompute()
